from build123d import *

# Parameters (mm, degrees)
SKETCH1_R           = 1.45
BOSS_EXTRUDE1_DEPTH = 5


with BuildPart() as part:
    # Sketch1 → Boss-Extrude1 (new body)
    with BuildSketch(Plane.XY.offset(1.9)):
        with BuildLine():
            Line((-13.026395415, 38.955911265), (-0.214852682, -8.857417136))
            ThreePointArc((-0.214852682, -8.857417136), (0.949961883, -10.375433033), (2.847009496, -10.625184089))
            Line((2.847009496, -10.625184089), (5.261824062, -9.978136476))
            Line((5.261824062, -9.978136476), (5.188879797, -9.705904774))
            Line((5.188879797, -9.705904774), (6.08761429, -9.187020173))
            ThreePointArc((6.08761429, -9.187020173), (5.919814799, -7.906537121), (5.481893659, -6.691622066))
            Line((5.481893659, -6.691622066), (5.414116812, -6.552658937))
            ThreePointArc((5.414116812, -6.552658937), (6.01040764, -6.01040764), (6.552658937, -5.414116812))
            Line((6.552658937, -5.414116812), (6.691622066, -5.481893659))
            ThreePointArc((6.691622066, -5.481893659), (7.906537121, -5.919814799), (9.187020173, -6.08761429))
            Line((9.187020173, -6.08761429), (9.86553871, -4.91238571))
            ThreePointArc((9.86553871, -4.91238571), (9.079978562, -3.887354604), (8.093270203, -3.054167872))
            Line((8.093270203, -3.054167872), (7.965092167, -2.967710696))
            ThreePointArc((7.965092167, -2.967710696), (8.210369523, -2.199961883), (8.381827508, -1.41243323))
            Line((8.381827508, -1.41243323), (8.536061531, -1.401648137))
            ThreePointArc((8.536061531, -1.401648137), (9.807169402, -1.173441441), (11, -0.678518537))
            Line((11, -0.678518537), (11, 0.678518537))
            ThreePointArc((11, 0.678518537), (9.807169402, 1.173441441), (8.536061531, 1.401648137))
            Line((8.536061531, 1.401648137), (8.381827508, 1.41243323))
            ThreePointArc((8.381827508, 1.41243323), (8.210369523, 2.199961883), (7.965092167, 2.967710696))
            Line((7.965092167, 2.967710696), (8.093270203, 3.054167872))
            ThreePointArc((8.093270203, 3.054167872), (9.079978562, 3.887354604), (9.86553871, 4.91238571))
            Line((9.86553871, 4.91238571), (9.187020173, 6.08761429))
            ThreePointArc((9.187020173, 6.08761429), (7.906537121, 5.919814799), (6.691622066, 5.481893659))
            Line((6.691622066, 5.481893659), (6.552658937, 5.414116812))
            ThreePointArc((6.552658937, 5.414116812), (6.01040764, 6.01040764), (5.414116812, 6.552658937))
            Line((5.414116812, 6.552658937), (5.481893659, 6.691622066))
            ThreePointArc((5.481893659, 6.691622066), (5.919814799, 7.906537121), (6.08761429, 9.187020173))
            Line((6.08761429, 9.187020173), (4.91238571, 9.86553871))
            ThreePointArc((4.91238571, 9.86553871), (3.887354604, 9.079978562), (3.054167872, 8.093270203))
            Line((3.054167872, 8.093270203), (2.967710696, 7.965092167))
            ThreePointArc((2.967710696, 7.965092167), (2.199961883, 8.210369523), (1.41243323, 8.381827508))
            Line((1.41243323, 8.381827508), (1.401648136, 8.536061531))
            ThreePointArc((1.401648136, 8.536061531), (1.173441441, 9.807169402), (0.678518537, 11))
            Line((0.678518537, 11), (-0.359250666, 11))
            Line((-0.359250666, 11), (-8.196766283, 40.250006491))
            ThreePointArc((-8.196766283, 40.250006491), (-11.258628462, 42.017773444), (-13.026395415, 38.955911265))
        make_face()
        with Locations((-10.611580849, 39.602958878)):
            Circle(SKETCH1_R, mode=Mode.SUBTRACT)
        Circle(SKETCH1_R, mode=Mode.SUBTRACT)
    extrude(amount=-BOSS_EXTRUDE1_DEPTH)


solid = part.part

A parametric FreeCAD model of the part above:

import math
import FreeCAD as App
import Part
import Sketcher
from FreeCAD import Vector
Q = App.Units.Quantity

doc = App.newDocument("Part")
params = doc.addObject("Spreadsheet::Sheet", "Params")
for row, (alias, value) in enumerate([
    ("sketch1_radius", "6 mm"),
    ("sketch1_diameter", "2.9 mm"),
    ("sketch1_radius2", "2.5 mm"),
    ("sketch1_radius3", "8.5 mm"),
    ("sketch1_length", "49.5 mm"),
    ("pad1_length", "5 mm"),
], start=1):
    params.set(f"A{row}", alias)
    params.set(f"B{row}", "=" + value)
    params.setAlias(f"B{row}", alias)

body = doc.addObject("PartDesign::Body", "Body")

# Sketch on XY plane
sketch1 = body.newObject("Sketcher::SketchObject", "Sketch")
sketch1.AttachmentSupport = (doc.getObject("XY_Plane"), [""])
sketch1.MapMode = "FlatFace"
sketch1.AttachmentOffset = App.Placement(Vector(0, 0, 1.9), App.Rotation())
sketch1.addGeometry(Part.LineSegment(Vector(-13.026395, 38.955911, 0), Vector(-0.214853, -8.857417, 0)), False)
sketch1.addGeometry(Part.ArcOfCircle(Part.Circle(Vector(2.199962, -8.21037, 0), Vector(0, 0, 1), 2.5), math.radians(-165), math.radians(-75)), False)
sketch1.addGeometry(Part.LineSegment(Vector(2.847009, -10.625184, 0), Vector(5.261824, -9.978136, 0)), False)
sketch1.addGeometry(Part.LineSegment(Vector(5.261824, -9.978136, 0), Vector(5.18888, -9.705905, 0)), False)
sketch1.addGeometry(Part.LineSegment(Vector(5.18888, -9.705905, 0), Vector(6.087614, -9.18702, 0)), False)
sketch1.addGeometry(Part.ArcOfCircle(Part.Circle(Vector(0.089129, -9.321849, 0), Vector(0, 0, 1), 6), math.radians(1.287628), math.radians(26)), False)
sketch1.addGeometry(Part.LineSegment(Vector(5.481894, -6.691622, 0), Vector(5.414117, -6.552659, 0)), False)
sketch1.addGeometry(Part.ArcOfCircle(Part.Circle(Vector(0, 0, 0), Vector(0, 0, 1), 8.5), math.radians(-50.434872), math.radians(-39.565128)), False)
sketch1.addGeometry(Part.LineSegment(Vector(6.552659, -5.414117, 0), Vector(6.691622, -5.481894, 0)), False)
sketch1.addGeometry(Part.ArcOfCircle(Part.Circle(Vector(9.321849, -0.089129, 0), Vector(0, 0, 1), 6), math.radians(-116), math.radians(-91.287628)), False)
sketch1.addGeometry(Part.LineSegment(Vector(9.18702, -6.087614, 0), Vector(9.865539, -4.912386, 0)), False)
sketch1.addGeometry(Part.ArcOfCircle(Part.Circle(Vector(4.738113, -8.028393, 0), Vector(0, 0, 1), 6), math.radians(31.287628), math.radians(56)), False)
sketch1.addGeometry(Part.LineSegment(Vector(8.09327, -3.054168, 0), Vector(7.965092, -2.967711, 0)), False)
sketch1.addGeometry(Part.ArcOfCircle(Part.Circle(Vector(0, 0, 0), Vector(0, 0, 1), 8.5), math.radians(-20.434871), math.radians(-9.565129)), False)
sketch1.addGeometry(Part.LineSegment(Vector(8.381828, -1.412433, 0), Vector(8.536062, -1.401648, 0)), False)
sketch1.addGeometry(Part.ArcOfCircle(Part.Circle(Vector(8.117523, 4.583736, 0), Vector(0, 0, 1), 6), math.radians(-86), math.radians(-61.287628)), False)
sketch1.addGeometry(Part.LineSegment(Vector(11, -0.678519, 0), Vector(11, 0.678519, 0)), False)
sketch1.addGeometry(Part.ArcOfCircle(Part.Circle(Vector(8.117523, -4.583736, 0), Vector(0, 0, 1), 6), math.radians(61.287628), math.radians(86)), False)
sketch1.addGeometry(Part.LineSegment(Vector(8.536062, 1.401648, 0), Vector(8.381828, 1.412433, 0)), False)
sketch1.addGeometry(Part.ArcOfCircle(Part.Circle(Vector(0, 0, 0), Vector(0, 0, 1), 8.5), math.radians(9.565129), math.radians(20.434871)), False)
sketch1.addGeometry(Part.LineSegment(Vector(7.965092, 2.967711, 0), Vector(8.09327, 3.054168, 0)), False)
sketch1.addGeometry(Part.ArcOfCircle(Part.Circle(Vector(4.738113, 8.028393, 0), Vector(0, 0, 1), 6), math.radians(-56), math.radians(-31.287628)), False)
sketch1.addGeometry(Part.LineSegment(Vector(9.865539, 4.912386, 0), Vector(9.18702, 6.087614, 0)), False)
sketch1.addGeometry(Part.ArcOfCircle(Part.Circle(Vector(9.321849, 0.089129, 0), Vector(0, 0, 1), 6), math.radians(91.287628), math.radians(116)), False)
sketch1.addGeometry(Part.LineSegment(Vector(6.691622, 5.481894, 0), Vector(6.552659, 5.414117, 0)), False)
sketch1.addGeometry(Part.ArcOfCircle(Part.Circle(Vector(0, 0, 0), Vector(0, 0, 1), 8.5), math.radians(39.565128), math.radians(50.434872)), False)
sketch1.addGeometry(Part.LineSegment(Vector(5.414117, 6.552659, 0), Vector(5.481894, 6.691622, 0)), False)
sketch1.addGeometry(Part.ArcOfCircle(Part.Circle(Vector(0.089129, 9.321849, 0), Vector(0, 0, 1), 6), math.radians(-26), math.radians(-1.287628)), False)
sketch1.addGeometry(Part.LineSegment(Vector(6.087614, 9.18702, 0), Vector(4.912386, 9.865539, 0)), False)
sketch1.addGeometry(Part.ArcOfCircle(Part.Circle(Vector(8.028393, 4.738113, 0), Vector(0, 0, 1), 6), math.radians(121.287628), math.radians(146)), False)
sketch1.addGeometry(Part.LineSegment(Vector(3.054168, 8.09327, 0), Vector(2.967711, 7.965092, 0)), False)
sketch1.addGeometry(Part.ArcOfCircle(Part.Circle(Vector(0, 0, 0), Vector(0, 0, 1), 8.5), math.radians(69.565129), math.radians(80.434871)), False)
sketch1.addGeometry(Part.LineSegment(Vector(1.412433, 8.381828, 0), Vector(1.401648, 8.536062, 0)), False)
sketch1.addGeometry(Part.ArcOfCircle(Part.Circle(Vector(-4.583736, 8.117523, 0), Vector(0, 0, 1), 6), math.radians(4), math.radians(28.712372)), False)
sketch1.addGeometry(Part.LineSegment(Vector(0.678519, 11, 0), Vector(-0.359251, 11, 0)), False)
sketch1.addGeometry(Part.LineSegment(Vector(-0.359251, 11, 0), Vector(-8.196766, 40.250006, 0)), False)
sketch1.addGeometry(Part.ArcOfCircle(Part.Circle(Vector(-10.611581, 39.602959, 0), Vector(0, 0, 1), 2.5), math.radians(15), math.radians(195)), False)
sketch1.addGeometry(Part.Circle(Vector(0, 0, 0), Vector(0, 0, 1), 1.45), False)
sketch1.addGeometry(Part.Circle(Vector(-10.611581, 39.602959, 0), Vector(0, 0, 1), 1.45), False)
sketch1.addConstraint(Sketcher.Constraint("Tangent", 0, 2, 1, 1))
sketch1.addConstraint(Sketcher.Constraint("Tangent", 1, 2, 2, 1))
sketch1.addConstraint(Sketcher.Constraint("Coincident", 2, 2, 3, 1))
sketch1.addConstraint(Sketcher.Constraint("Coincident", 3, 2, 4, 1))
sketch1.addConstraint(Sketcher.Constraint("Coincident", 4, 2, 5, 1))
sketch1.addConstraint(Sketcher.Constraint("Tangent", 5, 2, 6, 1))
sketch1.addConstraint(Sketcher.Constraint("Coincident", 6, 2, 7, 1))
sketch1.addConstraint(Sketcher.Constraint("Coincident", 7, 2, 8, 1))
sketch1.addConstraint(Sketcher.Constraint("Tangent", 8, 2, 9, 1))
sketch1.addConstraint(Sketcher.Constraint("Coincident", 9, 2, 10, 1))
sketch1.addConstraint(Sketcher.Constraint("Coincident", 10, 2, 11, 1))
sketch1.addConstraint(Sketcher.Constraint("Tangent", 11, 2, 12, 1))
sketch1.addConstraint(Sketcher.Constraint("Coincident", 12, 2, 13, 1))
sketch1.addConstraint(Sketcher.Constraint("Coincident", 13, 2, 14, 1))
sketch1.addConstraint(Sketcher.Constraint("Tangent", 14, 2, 15, 1))
sketch1.addConstraint(Sketcher.Constraint("Coincident", 15, 2, 16, 1))
sketch1.addConstraint(Sketcher.Constraint("Coincident", 16, 2, 17, 1))
sketch1.addConstraint(Sketcher.Constraint("Tangent", 17, 2, 18, 1))
sketch1.addConstraint(Sketcher.Constraint("Coincident", 18, 2, 19, 1))
sketch1.addConstraint(Sketcher.Constraint("Coincident", 19, 2, 20, 1))
sketch1.addConstraint(Sketcher.Constraint("Tangent", 20, 2, 21, 1))
sketch1.addConstraint(Sketcher.Constraint("Coincident", 21, 2, 22, 1))
sketch1.addConstraint(Sketcher.Constraint("Coincident", 22, 2, 23, 1))
sketch1.addConstraint(Sketcher.Constraint("Tangent", 23, 2, 24, 1))
sketch1.addConstraint(Sketcher.Constraint("Coincident", 24, 2, 25, 1))
sketch1.addConstraint(Sketcher.Constraint("Coincident", 25, 2, 26, 1))
sketch1.addConstraint(Sketcher.Constraint("Tangent", 26, 2, 27, 1))
sketch1.addConstraint(Sketcher.Constraint("Coincident", 27, 2, 28, 1))
sketch1.addConstraint(Sketcher.Constraint("Coincident", 28, 2, 29, 1))
sketch1.addConstraint(Sketcher.Constraint("Tangent", 29, 2, 30, 1))
sketch1.addConstraint(Sketcher.Constraint("Coincident", 30, 2, 31, 1))
sketch1.addConstraint(Sketcher.Constraint("Coincident", 31, 2, 32, 1))
sketch1.addConstraint(Sketcher.Constraint("Tangent", 32, 2, 33, 1))
sketch1.addConstraint(Sketcher.Constraint("Coincident", 33, 2, 34, 1))
sketch1.addConstraint(Sketcher.Constraint("Coincident", 34, 2, 35, 1))
sketch1.addConstraint(Sketcher.Constraint("Tangent", 35, 2, 36, 1))
sketch1.addConstraint(Sketcher.Constraint("Tangent", 36, 2, 0, 1))
sketch1.addConstraint(Sketcher.Constraint("Vertical", 16))
sketch1.addConstraint(Sketcher.Constraint("Horizontal", 34))
sketch1.addConstraint(Sketcher.Constraint("Coincident", 7, 3, -1, 1))
sketch1.addConstraint(Sketcher.Constraint("Coincident", 13, 3, -1, 1))
sketch1.addConstraint(Sketcher.Constraint("Coincident", 19, 3, -1, 1))
sketch1.addConstraint(Sketcher.Constraint("Coincident", 25, 3, -1, 1))
sketch1.addConstraint(Sketcher.Constraint("Coincident", 31, 3, -1, 1))
sketch1.addConstraint(Sketcher.Constraint("Coincident", 37, 3, -1, 1))
sketch1.addConstraint(Sketcher.Constraint("Coincident", 38, 3, 36, 3))
sketch1.addConstraint(Sketcher.Constraint("Equal", 5, 9))
sketch1.addConstraint(Sketcher.Constraint("Equal", 9, 11))
sketch1.addConstraint(Sketcher.Constraint("Equal", 7, 13))
sketch1.addConstraint(Sketcher.Constraint("Equal", 11, 15))
sketch1.addConstraint(Sketcher.Constraint("Equal", 15, 17))
sketch1.addConstraint(Sketcher.Constraint("Equal", 13, 19))
sketch1.addConstraint(Sketcher.Constraint("Equal", 17, 21))
sketch1.addConstraint(Sketcher.Constraint("Equal", 21, 23))
sketch1.addConstraint(Sketcher.Constraint("Equal", 19, 25))
sketch1.addConstraint(Sketcher.Constraint("Equal", 23, 27))
sketch1.addConstraint(Sketcher.Constraint("Equal", 27, 29))
sketch1.addConstraint(Sketcher.Constraint("Equal", 25, 31))
sketch1.addConstraint(Sketcher.Constraint("Equal", 29, 33))
sketch1.addConstraint(Sketcher.Constraint("Equal", 1, 36))
sketch1.addConstraint(Sketcher.Constraint("Equal", 37, 38))
sketch1.addConstraint(Sketcher.Constraint("Symmetric", 15, 3, 17, 3, -1))
sketch1.addConstraint(Sketcher.Constraint("Symmetric", 11, 3, 21, 3, -1))
sketch1.addConstraint(Sketcher.Constraint("Symmetric", 9, 3, 23, 3, -1))
sketch1.addConstraint(Sketcher.Constraint("Symmetric", 5, 3, 27, 3, -1))
sketch1.addConstraint(Sketcher.Constraint("Perpendicular", 0, 2))
sketch1.addConstraint(Sketcher.Constraint("Perpendicular", 2, 3))
sketch1.addConstraint(Sketcher.Constraint("Perpendicular", 4, 22))
sketch1.addConstraint(Sketcher.Constraint("Perpendicular", 6, 24))
sketch1.addConstraint(Sketcher.Constraint("Perpendicular", 8, 26))
sketch1.addConstraint(Sketcher.Constraint("Perpendicular", 10, 28))
sketch1.addConstraint(Sketcher.Constraint("Perpendicular", 12, 30))
sketch1.addConstraint(Sketcher.Constraint("Perpendicular", 14, 32))
sketch1.addConstraint(Sketcher.Constraint("Parallel", 3, 35))
sketch1.addConstraint(Sketcher.Constraint("Vertical", 14, 2, 17, 2))
sketch1.addConstraint(Sketcher.Constraint("Vertical", 12, 2, 19, 2))
sketch1.addConstraint(Sketcher.Constraint("Vertical", 10, 2, 21, 2))
sketch1.addConstraint(Sketcher.Constraint("Vertical", 9, 2, 22, 2))
sketch1.addConstraint(Sketcher.Constraint("Vertical", 8, 2, 23, 2))
sketch1.addConstraint(Sketcher.Constraint("Vertical", 4, 2, 27, 2))
sketch1.addConstraint(Sketcher.Constraint("Equal", 6, 8))
sketch1.addConstraint(Sketcher.Constraint("Equal", 8, 12))
sketch1.addConstraint(Sketcher.Constraint("Equal", 12, 14))
sketch1.addConstraint(Sketcher.Constraint("Equal", 22, 28))
sketch1.addConstraint(Sketcher.Constraint("Equal", 26, 30))
sketch1.addConstraint(Sketcher.Constraint("Equal", 30, 32))
sketch1.addConstraint(Sketcher.Constraint("Radius", 5, 6.0))
sketch1.addConstraint(Sketcher.Constraint("Diameter", 37, 2.9))
sketch1.addConstraint(Sketcher.Constraint("Radius", 1, 2.5))
sketch1.addConstraint(Sketcher.Constraint("Radius", 7, 8.5))
sketch1.addConstraint(Sketcher.Constraint("Angle", 0, Q("-75 deg")))
sketch1.addConstraint(Sketcher.Constraint("Angle", 4, Q("30 deg")))
sketch1.addConstraint(Sketcher.Constraint("Angle", 6, Q("116 deg")))
sketch1.addConstraint(Sketcher.Constraint("Angle", 12, Q("146 deg")))
sketch1.addConstraint(Sketcher.Constraint("Angle", 14, Q("4 deg")))
sketch1.addConstraint(Sketcher.Constraint("DistanceX", -1, 1, 15, 2, 11.0))
sketch1.addConstraint(Sketcher.Constraint("DistanceY", -1, 1, 33, 2, 11.0))
sketch1.addConstraint(Sketcher.Constraint("Distance", 0, 49.5))
sketch1.addConstraint(Sketcher.Constraint("Distance", 2, 2.5))
sketch1.addConstraint(Sketcher.Constraint("DistanceX", 34, 2, 34, 1, 1.037769))
sketch1.addConstraint(Sketcher.Constraint("DistanceX", 11, 3, 4, 2, 1.349502))
sketch1.addConstraint(Sketcher.Constraint("DistanceY", 4, 2, 5, 2, 2.495398))
sketch1.addConstraint(Sketcher.Constraint("DistanceX", 8, 2, 17, 3, 1.425901))
sketch1.addConstraint(Sketcher.Constraint("DistanceY", 11, 3, 8, 2, 2.5465))
sketch1.addConstraint(Sketcher.Constraint("DistanceX", 8, 2, 9, 2, 2.495398))
sketch1.addConstraint(Sketcher.Constraint("DistanceX", 19, 2, 29, 3, 0.063301))
sketch1.addConstraint(Sketcher.Constraint("DistanceY", 29, 3, 22, 2, 1.349502))
sketch1.addConstraint(Sketcher.Constraint("DistanceX", 34, 2, 32, 2, 1.760899))
sketch1.addConstraint(Sketcher.Constraint("DistanceX", -1, 1, 1, 3, 2.199962))
sketch1.setExpression("Constraints[86]", "Params.sketch1_radius")
sketch1.setExpression("Constraints[87]", "Params.sketch1_diameter")
sketch1.setExpression("Constraints[88]", "Params.sketch1_radius2")
sketch1.setExpression("Constraints[89]", "Params.sketch1_radius3")
sketch1.setExpression("Constraints[97]", "Params.sketch1_length")
pad1 = body.newObject("PartDesign::Pad", "Pad")
pad1.Profile = sketch1
pad1.setExpression("Length", "Params.pad1_length")
pad1.Reversed = True

doc.recompute()
